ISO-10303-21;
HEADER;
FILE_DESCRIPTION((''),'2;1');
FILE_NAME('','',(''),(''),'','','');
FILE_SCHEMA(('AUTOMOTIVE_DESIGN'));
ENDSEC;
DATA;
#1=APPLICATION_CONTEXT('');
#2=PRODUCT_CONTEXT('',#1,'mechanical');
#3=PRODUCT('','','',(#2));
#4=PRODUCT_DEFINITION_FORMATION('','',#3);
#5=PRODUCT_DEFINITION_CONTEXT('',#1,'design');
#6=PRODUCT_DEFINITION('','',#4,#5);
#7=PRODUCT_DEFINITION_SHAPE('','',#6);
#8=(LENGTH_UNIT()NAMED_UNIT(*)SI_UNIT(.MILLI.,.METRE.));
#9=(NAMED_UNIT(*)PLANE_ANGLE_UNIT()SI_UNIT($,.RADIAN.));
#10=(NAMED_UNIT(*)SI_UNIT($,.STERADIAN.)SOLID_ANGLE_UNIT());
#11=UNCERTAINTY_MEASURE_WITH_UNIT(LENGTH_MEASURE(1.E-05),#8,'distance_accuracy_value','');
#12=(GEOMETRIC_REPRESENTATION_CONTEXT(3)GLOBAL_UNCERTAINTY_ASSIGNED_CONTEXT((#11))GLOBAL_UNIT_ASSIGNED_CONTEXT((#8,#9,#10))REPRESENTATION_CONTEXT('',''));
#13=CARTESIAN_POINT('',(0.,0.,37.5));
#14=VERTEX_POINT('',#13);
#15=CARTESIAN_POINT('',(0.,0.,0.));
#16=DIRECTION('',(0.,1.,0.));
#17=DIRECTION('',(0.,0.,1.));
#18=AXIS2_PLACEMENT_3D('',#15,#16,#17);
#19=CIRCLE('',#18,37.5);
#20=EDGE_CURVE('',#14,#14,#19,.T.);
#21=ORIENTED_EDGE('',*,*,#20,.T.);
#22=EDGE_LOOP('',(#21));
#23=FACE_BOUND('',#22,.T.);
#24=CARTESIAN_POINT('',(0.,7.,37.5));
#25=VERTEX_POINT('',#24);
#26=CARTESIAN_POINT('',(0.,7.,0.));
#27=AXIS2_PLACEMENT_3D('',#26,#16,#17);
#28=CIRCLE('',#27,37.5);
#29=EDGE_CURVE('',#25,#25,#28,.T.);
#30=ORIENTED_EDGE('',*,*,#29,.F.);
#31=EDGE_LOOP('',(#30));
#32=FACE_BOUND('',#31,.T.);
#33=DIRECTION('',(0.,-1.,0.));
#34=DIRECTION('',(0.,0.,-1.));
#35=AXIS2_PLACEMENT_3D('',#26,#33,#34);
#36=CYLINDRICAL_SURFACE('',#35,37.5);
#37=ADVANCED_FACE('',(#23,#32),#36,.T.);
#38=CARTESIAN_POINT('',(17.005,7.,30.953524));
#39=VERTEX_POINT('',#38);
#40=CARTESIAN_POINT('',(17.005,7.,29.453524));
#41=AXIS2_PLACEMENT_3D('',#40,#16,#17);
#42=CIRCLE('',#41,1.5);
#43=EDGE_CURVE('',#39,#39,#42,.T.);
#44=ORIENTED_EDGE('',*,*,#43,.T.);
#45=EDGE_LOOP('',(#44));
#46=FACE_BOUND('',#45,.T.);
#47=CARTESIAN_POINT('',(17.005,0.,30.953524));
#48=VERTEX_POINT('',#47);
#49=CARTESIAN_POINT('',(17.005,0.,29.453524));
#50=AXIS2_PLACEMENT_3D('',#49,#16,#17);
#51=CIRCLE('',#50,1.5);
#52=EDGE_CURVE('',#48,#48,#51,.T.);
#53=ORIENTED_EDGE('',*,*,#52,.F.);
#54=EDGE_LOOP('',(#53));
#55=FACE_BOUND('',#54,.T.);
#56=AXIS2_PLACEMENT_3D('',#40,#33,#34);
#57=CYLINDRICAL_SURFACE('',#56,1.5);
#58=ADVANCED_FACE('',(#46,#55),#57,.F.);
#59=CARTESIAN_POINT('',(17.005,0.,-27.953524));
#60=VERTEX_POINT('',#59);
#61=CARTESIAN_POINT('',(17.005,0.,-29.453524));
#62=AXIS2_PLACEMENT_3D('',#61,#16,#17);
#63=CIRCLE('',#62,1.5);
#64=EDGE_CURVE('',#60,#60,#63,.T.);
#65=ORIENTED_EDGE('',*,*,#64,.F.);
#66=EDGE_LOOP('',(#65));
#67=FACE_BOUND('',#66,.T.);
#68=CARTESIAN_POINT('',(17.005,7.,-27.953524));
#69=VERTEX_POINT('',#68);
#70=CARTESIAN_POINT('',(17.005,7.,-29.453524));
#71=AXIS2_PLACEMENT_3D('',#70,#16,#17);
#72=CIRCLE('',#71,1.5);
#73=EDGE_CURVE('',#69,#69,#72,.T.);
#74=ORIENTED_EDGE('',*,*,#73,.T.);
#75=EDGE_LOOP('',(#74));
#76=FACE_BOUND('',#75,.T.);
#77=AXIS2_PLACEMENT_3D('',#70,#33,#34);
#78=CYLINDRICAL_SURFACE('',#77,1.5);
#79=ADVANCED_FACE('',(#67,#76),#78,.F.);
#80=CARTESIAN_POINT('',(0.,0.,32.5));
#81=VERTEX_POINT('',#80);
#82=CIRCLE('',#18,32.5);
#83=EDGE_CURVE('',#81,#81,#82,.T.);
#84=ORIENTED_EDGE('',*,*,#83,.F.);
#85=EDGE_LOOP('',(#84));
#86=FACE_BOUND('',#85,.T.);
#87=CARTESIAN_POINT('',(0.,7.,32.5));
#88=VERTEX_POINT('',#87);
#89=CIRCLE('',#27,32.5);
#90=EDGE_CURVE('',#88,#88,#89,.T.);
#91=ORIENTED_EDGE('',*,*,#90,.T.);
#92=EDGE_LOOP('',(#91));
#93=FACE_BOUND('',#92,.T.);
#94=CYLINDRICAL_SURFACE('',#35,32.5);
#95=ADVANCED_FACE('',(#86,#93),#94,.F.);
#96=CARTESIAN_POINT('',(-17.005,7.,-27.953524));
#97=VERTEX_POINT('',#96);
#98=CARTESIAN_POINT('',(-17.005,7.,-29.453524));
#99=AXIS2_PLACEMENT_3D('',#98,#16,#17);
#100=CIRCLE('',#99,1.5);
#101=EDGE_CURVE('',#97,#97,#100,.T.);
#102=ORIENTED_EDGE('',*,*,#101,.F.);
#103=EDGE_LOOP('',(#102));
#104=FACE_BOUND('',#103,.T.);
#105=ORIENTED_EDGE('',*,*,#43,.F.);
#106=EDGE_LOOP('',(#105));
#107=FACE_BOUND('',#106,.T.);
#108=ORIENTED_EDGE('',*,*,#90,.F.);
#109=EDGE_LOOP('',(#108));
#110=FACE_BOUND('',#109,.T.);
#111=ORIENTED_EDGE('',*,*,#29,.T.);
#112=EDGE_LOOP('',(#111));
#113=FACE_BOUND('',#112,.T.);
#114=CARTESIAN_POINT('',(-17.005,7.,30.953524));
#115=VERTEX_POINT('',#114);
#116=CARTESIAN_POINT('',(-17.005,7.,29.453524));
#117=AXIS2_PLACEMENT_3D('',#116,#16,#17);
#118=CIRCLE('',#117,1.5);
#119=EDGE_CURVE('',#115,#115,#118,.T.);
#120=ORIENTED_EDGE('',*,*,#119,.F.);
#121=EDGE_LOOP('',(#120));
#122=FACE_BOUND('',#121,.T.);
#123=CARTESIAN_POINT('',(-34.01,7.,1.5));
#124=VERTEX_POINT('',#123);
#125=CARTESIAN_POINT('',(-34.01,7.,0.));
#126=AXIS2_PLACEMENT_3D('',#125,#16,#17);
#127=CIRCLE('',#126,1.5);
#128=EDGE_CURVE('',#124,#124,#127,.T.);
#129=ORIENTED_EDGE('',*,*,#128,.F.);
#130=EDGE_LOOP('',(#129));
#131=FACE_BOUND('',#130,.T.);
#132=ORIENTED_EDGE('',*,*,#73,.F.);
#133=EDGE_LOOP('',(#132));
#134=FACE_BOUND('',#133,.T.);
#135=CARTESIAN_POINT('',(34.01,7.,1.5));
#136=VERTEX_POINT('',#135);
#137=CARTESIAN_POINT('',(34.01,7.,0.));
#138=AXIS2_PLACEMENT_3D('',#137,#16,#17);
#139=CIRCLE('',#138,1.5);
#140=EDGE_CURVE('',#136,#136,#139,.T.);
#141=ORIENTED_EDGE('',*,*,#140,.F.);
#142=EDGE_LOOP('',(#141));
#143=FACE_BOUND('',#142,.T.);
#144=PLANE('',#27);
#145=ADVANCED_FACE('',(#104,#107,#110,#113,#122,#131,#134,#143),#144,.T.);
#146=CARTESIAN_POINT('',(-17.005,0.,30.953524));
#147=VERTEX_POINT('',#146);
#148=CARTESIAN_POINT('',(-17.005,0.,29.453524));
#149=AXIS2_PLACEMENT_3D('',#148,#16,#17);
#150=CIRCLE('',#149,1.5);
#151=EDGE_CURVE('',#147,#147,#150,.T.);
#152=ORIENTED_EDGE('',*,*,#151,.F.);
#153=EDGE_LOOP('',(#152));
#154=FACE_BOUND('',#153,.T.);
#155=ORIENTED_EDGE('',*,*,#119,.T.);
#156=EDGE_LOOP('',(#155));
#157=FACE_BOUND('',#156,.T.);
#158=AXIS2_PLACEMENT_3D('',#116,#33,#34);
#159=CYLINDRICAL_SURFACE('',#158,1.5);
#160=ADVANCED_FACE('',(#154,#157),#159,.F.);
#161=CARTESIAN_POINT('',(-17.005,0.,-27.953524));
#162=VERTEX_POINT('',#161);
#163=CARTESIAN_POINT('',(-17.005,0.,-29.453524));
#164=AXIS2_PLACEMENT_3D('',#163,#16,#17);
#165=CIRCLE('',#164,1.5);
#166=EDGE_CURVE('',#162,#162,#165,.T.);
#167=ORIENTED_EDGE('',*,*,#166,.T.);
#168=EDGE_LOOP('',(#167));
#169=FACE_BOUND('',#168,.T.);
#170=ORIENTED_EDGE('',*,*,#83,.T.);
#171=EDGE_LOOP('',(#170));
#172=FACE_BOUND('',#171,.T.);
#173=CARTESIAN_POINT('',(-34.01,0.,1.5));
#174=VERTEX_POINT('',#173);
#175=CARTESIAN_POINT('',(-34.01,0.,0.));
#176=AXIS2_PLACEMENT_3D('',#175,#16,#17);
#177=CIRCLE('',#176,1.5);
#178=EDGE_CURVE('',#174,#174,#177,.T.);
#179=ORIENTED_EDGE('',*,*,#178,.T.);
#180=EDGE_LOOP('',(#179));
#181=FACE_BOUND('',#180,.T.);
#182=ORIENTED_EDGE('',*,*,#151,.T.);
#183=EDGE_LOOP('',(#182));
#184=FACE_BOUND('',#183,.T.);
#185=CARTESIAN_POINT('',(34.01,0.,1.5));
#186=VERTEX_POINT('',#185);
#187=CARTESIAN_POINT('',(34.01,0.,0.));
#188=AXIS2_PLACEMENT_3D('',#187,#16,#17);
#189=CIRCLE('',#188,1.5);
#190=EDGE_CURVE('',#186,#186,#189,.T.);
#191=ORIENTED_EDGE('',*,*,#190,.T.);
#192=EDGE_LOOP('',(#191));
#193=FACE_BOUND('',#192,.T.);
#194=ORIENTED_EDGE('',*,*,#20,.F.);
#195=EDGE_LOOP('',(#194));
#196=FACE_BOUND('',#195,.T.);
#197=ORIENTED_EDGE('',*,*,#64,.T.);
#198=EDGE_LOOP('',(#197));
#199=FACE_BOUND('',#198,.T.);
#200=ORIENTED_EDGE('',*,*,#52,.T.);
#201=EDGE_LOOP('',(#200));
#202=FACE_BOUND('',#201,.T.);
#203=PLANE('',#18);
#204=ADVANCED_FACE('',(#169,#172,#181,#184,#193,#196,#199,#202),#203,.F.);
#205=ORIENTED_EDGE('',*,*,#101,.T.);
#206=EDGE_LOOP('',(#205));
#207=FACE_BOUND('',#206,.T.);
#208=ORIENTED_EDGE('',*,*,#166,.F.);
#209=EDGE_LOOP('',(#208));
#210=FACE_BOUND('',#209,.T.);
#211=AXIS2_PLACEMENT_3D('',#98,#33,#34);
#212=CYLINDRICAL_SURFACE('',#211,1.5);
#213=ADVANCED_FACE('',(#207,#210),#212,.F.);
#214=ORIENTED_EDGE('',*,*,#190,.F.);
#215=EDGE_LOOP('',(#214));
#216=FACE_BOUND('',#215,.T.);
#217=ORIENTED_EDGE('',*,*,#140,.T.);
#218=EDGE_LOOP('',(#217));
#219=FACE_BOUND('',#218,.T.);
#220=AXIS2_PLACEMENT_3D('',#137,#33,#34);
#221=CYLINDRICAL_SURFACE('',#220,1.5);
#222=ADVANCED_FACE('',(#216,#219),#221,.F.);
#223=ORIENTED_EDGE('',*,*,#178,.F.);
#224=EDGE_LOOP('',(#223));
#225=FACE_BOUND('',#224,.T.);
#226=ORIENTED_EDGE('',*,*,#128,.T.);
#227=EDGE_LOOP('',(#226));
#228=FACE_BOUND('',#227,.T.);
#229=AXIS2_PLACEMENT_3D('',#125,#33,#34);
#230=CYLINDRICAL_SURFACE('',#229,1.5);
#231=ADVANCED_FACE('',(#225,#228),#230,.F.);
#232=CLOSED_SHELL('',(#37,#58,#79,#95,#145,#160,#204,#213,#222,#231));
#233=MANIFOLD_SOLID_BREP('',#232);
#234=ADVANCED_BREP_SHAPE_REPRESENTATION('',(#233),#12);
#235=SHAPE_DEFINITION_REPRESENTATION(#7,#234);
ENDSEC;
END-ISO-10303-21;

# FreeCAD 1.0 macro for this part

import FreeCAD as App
import Part
import Sketcher

doc = App.newDocument("Part")
body = doc.addObject("PartDesign::Body", "Body")

sketch1 = body.newObject("Sketcher::SketchObject", "Sketch")
sketch1.AttachmentSupport = (doc.getObject("XZ_Plane"), [""])
sketch1.MapMode = "FlatFace"
sketch1.addGeometry([
    Part.Circle(App.Vector(0, 0, 0), App.Vector(0, 0, 1), 37.5),
    Part.Circle(App.Vector(-17, -29.5, 0), App.Vector(0, 0, 1), 1.5),
    Part.Circle(App.Vector(-34, 0, 0), App.Vector(0, 0, 1), 1.5),
    Part.Circle(App.Vector(-17, 29.5, 0), App.Vector(0, 0, 1), 1.5),
    Part.Circle(App.Vector(17, -29.5, 0), App.Vector(0, 0, 1), 1.5),
    Part.Circle(App.Vector(34, 0, 0), App.Vector(0, 0, 1), 1.5),
    Part.Circle(App.Vector(0, 0, 0), App.Vector(0, 0, 1), 32.5),
    Part.Circle(App.Vector(17, 29.5, 0), App.Vector(0, 0, 1), 1.5),
], False)
sketch1.addConstraint([
    Sketcher.Constraint("Coincident", 0, 3, -1, 1),
    Sketcher.Constraint("Coincident", 6, 3, -1, 1),
    Sketcher.Constraint("Equal", 1, 2),
    Sketcher.Constraint("Equal", 2, 3),
    Sketcher.Constraint("Equal", 3, 4),
    Sketcher.Constraint("Equal", 4, 5),
    Sketcher.Constraint("Equal", 5, 7),
    Sketcher.Constraint("Symmetric", 3, 3, 4, 3, -1, 1),
    Sketcher.Constraint("Symmetric", 2, 3, 5, 3, -1, 1),
    Sketcher.Constraint("Symmetric", 1, 3, 7, 3, -1, 1),
    Sketcher.Constraint("Symmetric", 1, 3, 4, 3, -2),
    Sketcher.Constraint("PointOnObject", 2, 3, -1),
    Sketcher.Constraint("Diameter", 0, 75.0),
    Sketcher.Constraint("Diameter", 1, 3.0),
    Sketcher.Constraint("Diameter", 6, 65.0),
    Sketcher.Constraint("DistanceX", 2, 3, -1, 1, 34.01),
    Sketcher.Constraint("DistanceX", 1, 3, 4, 3, 34.01),
    Sketcher.Constraint("DistanceY", 1, 3, -1, 1, 29.453524),
])
pad1 = body.newObject("PartDesign::Pad", "Pad")
pad1.Profile = sketch1
pad1.Length = 7
pad1.Reversed = True

doc.recompute()
